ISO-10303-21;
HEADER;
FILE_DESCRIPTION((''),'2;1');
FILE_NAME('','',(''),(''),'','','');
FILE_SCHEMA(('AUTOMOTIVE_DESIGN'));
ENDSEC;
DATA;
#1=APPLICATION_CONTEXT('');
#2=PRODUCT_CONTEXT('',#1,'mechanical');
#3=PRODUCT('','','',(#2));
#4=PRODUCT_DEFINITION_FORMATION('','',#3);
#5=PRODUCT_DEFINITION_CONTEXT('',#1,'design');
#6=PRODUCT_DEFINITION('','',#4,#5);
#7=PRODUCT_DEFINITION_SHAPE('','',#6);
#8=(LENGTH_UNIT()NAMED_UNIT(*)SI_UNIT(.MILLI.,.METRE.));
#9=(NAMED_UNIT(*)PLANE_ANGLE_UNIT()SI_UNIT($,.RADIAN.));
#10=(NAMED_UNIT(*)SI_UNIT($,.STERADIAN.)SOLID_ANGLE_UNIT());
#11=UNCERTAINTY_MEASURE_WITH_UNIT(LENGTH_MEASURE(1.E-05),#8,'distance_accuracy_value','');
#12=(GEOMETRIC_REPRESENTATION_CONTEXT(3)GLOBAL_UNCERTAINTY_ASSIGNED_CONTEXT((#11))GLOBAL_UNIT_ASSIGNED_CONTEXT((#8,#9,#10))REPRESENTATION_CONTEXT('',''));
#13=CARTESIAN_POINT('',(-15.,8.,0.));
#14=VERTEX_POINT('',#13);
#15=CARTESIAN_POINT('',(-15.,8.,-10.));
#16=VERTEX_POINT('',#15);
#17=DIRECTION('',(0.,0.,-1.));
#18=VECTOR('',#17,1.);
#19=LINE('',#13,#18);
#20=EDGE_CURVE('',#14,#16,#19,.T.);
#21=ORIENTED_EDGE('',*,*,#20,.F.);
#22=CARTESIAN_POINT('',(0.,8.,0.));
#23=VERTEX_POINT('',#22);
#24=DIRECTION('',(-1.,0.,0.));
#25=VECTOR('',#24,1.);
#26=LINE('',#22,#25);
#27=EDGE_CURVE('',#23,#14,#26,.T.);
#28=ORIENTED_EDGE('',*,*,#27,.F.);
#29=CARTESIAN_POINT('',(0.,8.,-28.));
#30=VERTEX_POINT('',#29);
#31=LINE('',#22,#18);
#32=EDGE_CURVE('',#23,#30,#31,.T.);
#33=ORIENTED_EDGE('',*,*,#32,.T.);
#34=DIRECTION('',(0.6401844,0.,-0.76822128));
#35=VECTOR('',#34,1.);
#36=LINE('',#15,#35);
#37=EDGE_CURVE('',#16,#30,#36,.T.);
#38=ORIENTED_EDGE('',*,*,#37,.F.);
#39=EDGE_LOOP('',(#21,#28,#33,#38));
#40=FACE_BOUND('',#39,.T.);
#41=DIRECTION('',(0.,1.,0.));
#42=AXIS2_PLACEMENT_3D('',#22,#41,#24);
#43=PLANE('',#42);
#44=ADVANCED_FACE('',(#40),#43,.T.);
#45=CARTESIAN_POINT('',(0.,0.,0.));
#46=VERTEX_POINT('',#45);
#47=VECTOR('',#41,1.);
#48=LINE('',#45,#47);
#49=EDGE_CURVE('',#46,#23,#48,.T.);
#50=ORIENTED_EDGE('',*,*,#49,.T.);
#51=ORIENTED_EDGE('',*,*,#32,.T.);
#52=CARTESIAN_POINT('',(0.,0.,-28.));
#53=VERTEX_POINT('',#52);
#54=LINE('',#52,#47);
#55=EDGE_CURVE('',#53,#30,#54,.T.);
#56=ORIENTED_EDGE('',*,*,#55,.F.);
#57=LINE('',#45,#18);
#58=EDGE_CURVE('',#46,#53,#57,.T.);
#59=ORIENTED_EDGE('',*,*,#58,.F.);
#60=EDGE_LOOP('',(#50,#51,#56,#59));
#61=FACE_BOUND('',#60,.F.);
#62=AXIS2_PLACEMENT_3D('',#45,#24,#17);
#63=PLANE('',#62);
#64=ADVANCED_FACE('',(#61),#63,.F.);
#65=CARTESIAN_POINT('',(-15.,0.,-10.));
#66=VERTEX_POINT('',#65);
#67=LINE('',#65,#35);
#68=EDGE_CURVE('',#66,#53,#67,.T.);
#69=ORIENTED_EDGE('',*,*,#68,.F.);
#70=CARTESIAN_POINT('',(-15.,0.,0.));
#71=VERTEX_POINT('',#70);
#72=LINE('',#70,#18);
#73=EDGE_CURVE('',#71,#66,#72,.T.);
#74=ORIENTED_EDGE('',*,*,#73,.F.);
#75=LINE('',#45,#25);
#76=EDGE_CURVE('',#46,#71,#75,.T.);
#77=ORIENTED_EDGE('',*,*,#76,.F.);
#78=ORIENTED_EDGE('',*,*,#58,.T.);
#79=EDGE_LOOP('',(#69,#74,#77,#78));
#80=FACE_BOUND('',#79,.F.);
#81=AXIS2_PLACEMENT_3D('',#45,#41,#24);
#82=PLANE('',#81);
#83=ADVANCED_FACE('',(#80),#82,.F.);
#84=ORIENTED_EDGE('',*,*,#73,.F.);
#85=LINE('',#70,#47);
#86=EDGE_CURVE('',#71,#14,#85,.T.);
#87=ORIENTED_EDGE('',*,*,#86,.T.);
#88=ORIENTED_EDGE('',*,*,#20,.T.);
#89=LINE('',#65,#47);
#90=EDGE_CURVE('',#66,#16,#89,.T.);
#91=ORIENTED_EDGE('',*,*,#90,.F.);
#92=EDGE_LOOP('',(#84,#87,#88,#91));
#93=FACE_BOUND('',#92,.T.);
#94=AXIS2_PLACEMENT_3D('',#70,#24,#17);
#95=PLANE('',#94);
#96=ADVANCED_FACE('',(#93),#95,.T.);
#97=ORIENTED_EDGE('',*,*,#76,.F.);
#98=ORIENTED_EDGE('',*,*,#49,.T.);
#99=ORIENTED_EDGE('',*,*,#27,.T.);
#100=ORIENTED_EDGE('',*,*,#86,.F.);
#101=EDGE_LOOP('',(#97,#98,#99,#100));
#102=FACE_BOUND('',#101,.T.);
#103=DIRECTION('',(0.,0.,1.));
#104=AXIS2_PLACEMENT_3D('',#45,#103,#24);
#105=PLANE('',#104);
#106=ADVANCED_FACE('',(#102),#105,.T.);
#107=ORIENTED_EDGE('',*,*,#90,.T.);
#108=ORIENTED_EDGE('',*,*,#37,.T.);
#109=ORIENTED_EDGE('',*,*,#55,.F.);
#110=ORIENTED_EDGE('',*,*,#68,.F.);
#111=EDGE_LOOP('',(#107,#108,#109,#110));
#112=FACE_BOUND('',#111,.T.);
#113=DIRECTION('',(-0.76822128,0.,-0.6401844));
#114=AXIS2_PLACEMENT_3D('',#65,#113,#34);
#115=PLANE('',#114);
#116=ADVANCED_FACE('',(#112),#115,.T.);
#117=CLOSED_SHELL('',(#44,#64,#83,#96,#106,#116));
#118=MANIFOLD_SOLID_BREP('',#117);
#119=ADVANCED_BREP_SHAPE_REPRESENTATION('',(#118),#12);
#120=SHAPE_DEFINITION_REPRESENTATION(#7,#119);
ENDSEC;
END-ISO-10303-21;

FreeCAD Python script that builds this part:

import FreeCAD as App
import Part
import Sketcher

V = App.Vector
Q = App.Units.Quantity


def add_polygon(sketch, points):
    """Adds a closed chain of lines whose ends are joined by coincident constraints."""
    first, n = sketch.GeometryCount, len(points)
    for a, b in zip(points, points[1:] + points[:1]):
        sketch.addGeometry(Part.LineSegment(App.Vector(*a, 0), App.Vector(*b, 0)), False)
    for i in range(n):
        sketch.addConstraint(Sketcher.Constraint("Coincident", first + i, 2, first + (i + 1) % n, 1))

doc = App.newDocument("Part")
body = doc.addObject("PartDesign::Body", "Body")

sketch1 = body.newObject("Sketcher::SketchObject", "Sketch")
sketch1.AttachmentSupport = (doc.getObject("XZ_Plane"), [""])
sketch1.MapMode = "FlatFace"
add_polygon(sketch1, [(-15, 0), (0, 0), (0, -28), (-15, -10)])
sketch1.addConstraint([
    Sketcher.Constraint("Horizontal", 0),
    Sketcher.Constraint("Vertical", 1),
    Sketcher.Constraint("Vertical", 3),
    Sketcher.Constraint("Coincident", 0, 2, -1, 1),
    Sketcher.Constraint("DistanceX", 0, 1, 0, 2, Q("15 mm")),
    Sketcher.Constraint("DistanceY", 1, 2, 1, 1, Q("28 mm")),
    Sketcher.Constraint("DistanceY", 3, 1, 3, 2, Q("10 mm")),
])
pad1 = body.newObject("PartDesign::Pad", "Pad")
pad1.Profile = sketch1
pad1.Length = 8
pad1.Reversed = True

doc.recompute()
